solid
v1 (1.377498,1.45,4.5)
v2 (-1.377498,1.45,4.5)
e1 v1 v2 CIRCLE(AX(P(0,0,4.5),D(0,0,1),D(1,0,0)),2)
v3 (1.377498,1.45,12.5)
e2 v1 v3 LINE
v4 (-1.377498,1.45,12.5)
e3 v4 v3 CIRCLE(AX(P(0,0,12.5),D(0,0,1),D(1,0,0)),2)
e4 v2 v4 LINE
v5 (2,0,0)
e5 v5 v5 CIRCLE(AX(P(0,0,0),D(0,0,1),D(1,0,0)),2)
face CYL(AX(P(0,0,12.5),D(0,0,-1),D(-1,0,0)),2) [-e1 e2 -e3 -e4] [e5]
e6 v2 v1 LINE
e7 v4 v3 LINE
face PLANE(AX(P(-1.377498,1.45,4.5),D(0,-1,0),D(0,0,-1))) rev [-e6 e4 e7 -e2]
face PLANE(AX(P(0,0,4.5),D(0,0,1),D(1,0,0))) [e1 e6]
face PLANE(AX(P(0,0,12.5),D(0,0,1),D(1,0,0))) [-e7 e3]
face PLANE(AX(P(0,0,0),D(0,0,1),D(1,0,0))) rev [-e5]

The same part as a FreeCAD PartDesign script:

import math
import FreeCAD as App
import Part
import Sketcher

V = App.Vector

doc = App.newDocument("Part")
params = doc.addObject("Spreadsheet::Sheet", "Params")
for row, (alias, value) in enumerate([
    ("sketch1_diameter", "4 mm"),
    ("pad1_length", "12.5 mm"),
    ("sketch2_radius", "2 mm"),
    ("pocket1_length", "8 mm"),
], start=1):
    params.set(f"A{row}", alias)
    params.set(f"B{row}", "=" + value)
    params.setAlias(f"B{row}", alias)

body = doc.addObject("PartDesign::Body", "Body")

sketch1 = doc.addObject("Sketcher::SketchObject", "Sketch")
body.addObject(sketch1)
sketch1.AttachmentSupport = (doc.XY_Plane, [""])
sketch1.MapMode = "FlatFace"
sketch1.addGeometry(Part.Circle(V(0, 0, 0), V(0, 0, 1), 2), False)
sketch1.addConstraint([
    Sketcher.Constraint("Coincident", 0, 3, -1, 1),
    Sketcher.Constraint("Diameter", 0, 4.0),
])
sketch1.setExpression("Constraints[1]", "Params.sketch1_diameter")
pad1 = doc.addObject("PartDesign::Pad", "Pad")
body.addObject(pad1)
pad1.Profile = sketch1
pad1.setExpression("Length", "Params.pad1_length")

sketch2 = doc.addObject("Sketcher::SketchObject", "Sketch001")
body.addObject(sketch2)
sketch2.AttachmentSupport = (doc.XY_Plane, [""])
sketch2.MapMode = "FlatFace"
sketch2.AttachmentOffset = App.Placement(V(0, 0, 12.5), App.Rotation())
sketch2.addGeometry([
    Part.LineSegment(V(-1.4, 1.4, 0), V(1.4, 1.4, 0)),
    Part.ArcOfCircle(Part.Circle(V(0, 0, 0), V(0, 0, 1), 2), math.radians(46), math.radians(134)),
], False)
sketch2.addConstraint([
    Sketcher.Constraint("Coincident", 0, 1, 1, 2),
    Sketcher.Constraint("Coincident", 1, 1, 0, 2),
    Sketcher.Constraint("Horizontal", 0),
    Sketcher.Constraint("Coincident", 1, 3, -1, 1),
    Sketcher.Constraint("Radius", 1, 2.0),
    Sketcher.Constraint("DistanceY", -1, 1, 0, 1, 1.45),
])
sketch2.setExpression("Constraints[4]", "Params.sketch2_radius")
pocket1 = doc.addObject("PartDesign::Pocket", "Pocket")
body.addObject(pocket1)
pocket1.Profile = sketch2
pocket1.setExpression("Length", "Params.pocket1_length")

doc.recompute()
